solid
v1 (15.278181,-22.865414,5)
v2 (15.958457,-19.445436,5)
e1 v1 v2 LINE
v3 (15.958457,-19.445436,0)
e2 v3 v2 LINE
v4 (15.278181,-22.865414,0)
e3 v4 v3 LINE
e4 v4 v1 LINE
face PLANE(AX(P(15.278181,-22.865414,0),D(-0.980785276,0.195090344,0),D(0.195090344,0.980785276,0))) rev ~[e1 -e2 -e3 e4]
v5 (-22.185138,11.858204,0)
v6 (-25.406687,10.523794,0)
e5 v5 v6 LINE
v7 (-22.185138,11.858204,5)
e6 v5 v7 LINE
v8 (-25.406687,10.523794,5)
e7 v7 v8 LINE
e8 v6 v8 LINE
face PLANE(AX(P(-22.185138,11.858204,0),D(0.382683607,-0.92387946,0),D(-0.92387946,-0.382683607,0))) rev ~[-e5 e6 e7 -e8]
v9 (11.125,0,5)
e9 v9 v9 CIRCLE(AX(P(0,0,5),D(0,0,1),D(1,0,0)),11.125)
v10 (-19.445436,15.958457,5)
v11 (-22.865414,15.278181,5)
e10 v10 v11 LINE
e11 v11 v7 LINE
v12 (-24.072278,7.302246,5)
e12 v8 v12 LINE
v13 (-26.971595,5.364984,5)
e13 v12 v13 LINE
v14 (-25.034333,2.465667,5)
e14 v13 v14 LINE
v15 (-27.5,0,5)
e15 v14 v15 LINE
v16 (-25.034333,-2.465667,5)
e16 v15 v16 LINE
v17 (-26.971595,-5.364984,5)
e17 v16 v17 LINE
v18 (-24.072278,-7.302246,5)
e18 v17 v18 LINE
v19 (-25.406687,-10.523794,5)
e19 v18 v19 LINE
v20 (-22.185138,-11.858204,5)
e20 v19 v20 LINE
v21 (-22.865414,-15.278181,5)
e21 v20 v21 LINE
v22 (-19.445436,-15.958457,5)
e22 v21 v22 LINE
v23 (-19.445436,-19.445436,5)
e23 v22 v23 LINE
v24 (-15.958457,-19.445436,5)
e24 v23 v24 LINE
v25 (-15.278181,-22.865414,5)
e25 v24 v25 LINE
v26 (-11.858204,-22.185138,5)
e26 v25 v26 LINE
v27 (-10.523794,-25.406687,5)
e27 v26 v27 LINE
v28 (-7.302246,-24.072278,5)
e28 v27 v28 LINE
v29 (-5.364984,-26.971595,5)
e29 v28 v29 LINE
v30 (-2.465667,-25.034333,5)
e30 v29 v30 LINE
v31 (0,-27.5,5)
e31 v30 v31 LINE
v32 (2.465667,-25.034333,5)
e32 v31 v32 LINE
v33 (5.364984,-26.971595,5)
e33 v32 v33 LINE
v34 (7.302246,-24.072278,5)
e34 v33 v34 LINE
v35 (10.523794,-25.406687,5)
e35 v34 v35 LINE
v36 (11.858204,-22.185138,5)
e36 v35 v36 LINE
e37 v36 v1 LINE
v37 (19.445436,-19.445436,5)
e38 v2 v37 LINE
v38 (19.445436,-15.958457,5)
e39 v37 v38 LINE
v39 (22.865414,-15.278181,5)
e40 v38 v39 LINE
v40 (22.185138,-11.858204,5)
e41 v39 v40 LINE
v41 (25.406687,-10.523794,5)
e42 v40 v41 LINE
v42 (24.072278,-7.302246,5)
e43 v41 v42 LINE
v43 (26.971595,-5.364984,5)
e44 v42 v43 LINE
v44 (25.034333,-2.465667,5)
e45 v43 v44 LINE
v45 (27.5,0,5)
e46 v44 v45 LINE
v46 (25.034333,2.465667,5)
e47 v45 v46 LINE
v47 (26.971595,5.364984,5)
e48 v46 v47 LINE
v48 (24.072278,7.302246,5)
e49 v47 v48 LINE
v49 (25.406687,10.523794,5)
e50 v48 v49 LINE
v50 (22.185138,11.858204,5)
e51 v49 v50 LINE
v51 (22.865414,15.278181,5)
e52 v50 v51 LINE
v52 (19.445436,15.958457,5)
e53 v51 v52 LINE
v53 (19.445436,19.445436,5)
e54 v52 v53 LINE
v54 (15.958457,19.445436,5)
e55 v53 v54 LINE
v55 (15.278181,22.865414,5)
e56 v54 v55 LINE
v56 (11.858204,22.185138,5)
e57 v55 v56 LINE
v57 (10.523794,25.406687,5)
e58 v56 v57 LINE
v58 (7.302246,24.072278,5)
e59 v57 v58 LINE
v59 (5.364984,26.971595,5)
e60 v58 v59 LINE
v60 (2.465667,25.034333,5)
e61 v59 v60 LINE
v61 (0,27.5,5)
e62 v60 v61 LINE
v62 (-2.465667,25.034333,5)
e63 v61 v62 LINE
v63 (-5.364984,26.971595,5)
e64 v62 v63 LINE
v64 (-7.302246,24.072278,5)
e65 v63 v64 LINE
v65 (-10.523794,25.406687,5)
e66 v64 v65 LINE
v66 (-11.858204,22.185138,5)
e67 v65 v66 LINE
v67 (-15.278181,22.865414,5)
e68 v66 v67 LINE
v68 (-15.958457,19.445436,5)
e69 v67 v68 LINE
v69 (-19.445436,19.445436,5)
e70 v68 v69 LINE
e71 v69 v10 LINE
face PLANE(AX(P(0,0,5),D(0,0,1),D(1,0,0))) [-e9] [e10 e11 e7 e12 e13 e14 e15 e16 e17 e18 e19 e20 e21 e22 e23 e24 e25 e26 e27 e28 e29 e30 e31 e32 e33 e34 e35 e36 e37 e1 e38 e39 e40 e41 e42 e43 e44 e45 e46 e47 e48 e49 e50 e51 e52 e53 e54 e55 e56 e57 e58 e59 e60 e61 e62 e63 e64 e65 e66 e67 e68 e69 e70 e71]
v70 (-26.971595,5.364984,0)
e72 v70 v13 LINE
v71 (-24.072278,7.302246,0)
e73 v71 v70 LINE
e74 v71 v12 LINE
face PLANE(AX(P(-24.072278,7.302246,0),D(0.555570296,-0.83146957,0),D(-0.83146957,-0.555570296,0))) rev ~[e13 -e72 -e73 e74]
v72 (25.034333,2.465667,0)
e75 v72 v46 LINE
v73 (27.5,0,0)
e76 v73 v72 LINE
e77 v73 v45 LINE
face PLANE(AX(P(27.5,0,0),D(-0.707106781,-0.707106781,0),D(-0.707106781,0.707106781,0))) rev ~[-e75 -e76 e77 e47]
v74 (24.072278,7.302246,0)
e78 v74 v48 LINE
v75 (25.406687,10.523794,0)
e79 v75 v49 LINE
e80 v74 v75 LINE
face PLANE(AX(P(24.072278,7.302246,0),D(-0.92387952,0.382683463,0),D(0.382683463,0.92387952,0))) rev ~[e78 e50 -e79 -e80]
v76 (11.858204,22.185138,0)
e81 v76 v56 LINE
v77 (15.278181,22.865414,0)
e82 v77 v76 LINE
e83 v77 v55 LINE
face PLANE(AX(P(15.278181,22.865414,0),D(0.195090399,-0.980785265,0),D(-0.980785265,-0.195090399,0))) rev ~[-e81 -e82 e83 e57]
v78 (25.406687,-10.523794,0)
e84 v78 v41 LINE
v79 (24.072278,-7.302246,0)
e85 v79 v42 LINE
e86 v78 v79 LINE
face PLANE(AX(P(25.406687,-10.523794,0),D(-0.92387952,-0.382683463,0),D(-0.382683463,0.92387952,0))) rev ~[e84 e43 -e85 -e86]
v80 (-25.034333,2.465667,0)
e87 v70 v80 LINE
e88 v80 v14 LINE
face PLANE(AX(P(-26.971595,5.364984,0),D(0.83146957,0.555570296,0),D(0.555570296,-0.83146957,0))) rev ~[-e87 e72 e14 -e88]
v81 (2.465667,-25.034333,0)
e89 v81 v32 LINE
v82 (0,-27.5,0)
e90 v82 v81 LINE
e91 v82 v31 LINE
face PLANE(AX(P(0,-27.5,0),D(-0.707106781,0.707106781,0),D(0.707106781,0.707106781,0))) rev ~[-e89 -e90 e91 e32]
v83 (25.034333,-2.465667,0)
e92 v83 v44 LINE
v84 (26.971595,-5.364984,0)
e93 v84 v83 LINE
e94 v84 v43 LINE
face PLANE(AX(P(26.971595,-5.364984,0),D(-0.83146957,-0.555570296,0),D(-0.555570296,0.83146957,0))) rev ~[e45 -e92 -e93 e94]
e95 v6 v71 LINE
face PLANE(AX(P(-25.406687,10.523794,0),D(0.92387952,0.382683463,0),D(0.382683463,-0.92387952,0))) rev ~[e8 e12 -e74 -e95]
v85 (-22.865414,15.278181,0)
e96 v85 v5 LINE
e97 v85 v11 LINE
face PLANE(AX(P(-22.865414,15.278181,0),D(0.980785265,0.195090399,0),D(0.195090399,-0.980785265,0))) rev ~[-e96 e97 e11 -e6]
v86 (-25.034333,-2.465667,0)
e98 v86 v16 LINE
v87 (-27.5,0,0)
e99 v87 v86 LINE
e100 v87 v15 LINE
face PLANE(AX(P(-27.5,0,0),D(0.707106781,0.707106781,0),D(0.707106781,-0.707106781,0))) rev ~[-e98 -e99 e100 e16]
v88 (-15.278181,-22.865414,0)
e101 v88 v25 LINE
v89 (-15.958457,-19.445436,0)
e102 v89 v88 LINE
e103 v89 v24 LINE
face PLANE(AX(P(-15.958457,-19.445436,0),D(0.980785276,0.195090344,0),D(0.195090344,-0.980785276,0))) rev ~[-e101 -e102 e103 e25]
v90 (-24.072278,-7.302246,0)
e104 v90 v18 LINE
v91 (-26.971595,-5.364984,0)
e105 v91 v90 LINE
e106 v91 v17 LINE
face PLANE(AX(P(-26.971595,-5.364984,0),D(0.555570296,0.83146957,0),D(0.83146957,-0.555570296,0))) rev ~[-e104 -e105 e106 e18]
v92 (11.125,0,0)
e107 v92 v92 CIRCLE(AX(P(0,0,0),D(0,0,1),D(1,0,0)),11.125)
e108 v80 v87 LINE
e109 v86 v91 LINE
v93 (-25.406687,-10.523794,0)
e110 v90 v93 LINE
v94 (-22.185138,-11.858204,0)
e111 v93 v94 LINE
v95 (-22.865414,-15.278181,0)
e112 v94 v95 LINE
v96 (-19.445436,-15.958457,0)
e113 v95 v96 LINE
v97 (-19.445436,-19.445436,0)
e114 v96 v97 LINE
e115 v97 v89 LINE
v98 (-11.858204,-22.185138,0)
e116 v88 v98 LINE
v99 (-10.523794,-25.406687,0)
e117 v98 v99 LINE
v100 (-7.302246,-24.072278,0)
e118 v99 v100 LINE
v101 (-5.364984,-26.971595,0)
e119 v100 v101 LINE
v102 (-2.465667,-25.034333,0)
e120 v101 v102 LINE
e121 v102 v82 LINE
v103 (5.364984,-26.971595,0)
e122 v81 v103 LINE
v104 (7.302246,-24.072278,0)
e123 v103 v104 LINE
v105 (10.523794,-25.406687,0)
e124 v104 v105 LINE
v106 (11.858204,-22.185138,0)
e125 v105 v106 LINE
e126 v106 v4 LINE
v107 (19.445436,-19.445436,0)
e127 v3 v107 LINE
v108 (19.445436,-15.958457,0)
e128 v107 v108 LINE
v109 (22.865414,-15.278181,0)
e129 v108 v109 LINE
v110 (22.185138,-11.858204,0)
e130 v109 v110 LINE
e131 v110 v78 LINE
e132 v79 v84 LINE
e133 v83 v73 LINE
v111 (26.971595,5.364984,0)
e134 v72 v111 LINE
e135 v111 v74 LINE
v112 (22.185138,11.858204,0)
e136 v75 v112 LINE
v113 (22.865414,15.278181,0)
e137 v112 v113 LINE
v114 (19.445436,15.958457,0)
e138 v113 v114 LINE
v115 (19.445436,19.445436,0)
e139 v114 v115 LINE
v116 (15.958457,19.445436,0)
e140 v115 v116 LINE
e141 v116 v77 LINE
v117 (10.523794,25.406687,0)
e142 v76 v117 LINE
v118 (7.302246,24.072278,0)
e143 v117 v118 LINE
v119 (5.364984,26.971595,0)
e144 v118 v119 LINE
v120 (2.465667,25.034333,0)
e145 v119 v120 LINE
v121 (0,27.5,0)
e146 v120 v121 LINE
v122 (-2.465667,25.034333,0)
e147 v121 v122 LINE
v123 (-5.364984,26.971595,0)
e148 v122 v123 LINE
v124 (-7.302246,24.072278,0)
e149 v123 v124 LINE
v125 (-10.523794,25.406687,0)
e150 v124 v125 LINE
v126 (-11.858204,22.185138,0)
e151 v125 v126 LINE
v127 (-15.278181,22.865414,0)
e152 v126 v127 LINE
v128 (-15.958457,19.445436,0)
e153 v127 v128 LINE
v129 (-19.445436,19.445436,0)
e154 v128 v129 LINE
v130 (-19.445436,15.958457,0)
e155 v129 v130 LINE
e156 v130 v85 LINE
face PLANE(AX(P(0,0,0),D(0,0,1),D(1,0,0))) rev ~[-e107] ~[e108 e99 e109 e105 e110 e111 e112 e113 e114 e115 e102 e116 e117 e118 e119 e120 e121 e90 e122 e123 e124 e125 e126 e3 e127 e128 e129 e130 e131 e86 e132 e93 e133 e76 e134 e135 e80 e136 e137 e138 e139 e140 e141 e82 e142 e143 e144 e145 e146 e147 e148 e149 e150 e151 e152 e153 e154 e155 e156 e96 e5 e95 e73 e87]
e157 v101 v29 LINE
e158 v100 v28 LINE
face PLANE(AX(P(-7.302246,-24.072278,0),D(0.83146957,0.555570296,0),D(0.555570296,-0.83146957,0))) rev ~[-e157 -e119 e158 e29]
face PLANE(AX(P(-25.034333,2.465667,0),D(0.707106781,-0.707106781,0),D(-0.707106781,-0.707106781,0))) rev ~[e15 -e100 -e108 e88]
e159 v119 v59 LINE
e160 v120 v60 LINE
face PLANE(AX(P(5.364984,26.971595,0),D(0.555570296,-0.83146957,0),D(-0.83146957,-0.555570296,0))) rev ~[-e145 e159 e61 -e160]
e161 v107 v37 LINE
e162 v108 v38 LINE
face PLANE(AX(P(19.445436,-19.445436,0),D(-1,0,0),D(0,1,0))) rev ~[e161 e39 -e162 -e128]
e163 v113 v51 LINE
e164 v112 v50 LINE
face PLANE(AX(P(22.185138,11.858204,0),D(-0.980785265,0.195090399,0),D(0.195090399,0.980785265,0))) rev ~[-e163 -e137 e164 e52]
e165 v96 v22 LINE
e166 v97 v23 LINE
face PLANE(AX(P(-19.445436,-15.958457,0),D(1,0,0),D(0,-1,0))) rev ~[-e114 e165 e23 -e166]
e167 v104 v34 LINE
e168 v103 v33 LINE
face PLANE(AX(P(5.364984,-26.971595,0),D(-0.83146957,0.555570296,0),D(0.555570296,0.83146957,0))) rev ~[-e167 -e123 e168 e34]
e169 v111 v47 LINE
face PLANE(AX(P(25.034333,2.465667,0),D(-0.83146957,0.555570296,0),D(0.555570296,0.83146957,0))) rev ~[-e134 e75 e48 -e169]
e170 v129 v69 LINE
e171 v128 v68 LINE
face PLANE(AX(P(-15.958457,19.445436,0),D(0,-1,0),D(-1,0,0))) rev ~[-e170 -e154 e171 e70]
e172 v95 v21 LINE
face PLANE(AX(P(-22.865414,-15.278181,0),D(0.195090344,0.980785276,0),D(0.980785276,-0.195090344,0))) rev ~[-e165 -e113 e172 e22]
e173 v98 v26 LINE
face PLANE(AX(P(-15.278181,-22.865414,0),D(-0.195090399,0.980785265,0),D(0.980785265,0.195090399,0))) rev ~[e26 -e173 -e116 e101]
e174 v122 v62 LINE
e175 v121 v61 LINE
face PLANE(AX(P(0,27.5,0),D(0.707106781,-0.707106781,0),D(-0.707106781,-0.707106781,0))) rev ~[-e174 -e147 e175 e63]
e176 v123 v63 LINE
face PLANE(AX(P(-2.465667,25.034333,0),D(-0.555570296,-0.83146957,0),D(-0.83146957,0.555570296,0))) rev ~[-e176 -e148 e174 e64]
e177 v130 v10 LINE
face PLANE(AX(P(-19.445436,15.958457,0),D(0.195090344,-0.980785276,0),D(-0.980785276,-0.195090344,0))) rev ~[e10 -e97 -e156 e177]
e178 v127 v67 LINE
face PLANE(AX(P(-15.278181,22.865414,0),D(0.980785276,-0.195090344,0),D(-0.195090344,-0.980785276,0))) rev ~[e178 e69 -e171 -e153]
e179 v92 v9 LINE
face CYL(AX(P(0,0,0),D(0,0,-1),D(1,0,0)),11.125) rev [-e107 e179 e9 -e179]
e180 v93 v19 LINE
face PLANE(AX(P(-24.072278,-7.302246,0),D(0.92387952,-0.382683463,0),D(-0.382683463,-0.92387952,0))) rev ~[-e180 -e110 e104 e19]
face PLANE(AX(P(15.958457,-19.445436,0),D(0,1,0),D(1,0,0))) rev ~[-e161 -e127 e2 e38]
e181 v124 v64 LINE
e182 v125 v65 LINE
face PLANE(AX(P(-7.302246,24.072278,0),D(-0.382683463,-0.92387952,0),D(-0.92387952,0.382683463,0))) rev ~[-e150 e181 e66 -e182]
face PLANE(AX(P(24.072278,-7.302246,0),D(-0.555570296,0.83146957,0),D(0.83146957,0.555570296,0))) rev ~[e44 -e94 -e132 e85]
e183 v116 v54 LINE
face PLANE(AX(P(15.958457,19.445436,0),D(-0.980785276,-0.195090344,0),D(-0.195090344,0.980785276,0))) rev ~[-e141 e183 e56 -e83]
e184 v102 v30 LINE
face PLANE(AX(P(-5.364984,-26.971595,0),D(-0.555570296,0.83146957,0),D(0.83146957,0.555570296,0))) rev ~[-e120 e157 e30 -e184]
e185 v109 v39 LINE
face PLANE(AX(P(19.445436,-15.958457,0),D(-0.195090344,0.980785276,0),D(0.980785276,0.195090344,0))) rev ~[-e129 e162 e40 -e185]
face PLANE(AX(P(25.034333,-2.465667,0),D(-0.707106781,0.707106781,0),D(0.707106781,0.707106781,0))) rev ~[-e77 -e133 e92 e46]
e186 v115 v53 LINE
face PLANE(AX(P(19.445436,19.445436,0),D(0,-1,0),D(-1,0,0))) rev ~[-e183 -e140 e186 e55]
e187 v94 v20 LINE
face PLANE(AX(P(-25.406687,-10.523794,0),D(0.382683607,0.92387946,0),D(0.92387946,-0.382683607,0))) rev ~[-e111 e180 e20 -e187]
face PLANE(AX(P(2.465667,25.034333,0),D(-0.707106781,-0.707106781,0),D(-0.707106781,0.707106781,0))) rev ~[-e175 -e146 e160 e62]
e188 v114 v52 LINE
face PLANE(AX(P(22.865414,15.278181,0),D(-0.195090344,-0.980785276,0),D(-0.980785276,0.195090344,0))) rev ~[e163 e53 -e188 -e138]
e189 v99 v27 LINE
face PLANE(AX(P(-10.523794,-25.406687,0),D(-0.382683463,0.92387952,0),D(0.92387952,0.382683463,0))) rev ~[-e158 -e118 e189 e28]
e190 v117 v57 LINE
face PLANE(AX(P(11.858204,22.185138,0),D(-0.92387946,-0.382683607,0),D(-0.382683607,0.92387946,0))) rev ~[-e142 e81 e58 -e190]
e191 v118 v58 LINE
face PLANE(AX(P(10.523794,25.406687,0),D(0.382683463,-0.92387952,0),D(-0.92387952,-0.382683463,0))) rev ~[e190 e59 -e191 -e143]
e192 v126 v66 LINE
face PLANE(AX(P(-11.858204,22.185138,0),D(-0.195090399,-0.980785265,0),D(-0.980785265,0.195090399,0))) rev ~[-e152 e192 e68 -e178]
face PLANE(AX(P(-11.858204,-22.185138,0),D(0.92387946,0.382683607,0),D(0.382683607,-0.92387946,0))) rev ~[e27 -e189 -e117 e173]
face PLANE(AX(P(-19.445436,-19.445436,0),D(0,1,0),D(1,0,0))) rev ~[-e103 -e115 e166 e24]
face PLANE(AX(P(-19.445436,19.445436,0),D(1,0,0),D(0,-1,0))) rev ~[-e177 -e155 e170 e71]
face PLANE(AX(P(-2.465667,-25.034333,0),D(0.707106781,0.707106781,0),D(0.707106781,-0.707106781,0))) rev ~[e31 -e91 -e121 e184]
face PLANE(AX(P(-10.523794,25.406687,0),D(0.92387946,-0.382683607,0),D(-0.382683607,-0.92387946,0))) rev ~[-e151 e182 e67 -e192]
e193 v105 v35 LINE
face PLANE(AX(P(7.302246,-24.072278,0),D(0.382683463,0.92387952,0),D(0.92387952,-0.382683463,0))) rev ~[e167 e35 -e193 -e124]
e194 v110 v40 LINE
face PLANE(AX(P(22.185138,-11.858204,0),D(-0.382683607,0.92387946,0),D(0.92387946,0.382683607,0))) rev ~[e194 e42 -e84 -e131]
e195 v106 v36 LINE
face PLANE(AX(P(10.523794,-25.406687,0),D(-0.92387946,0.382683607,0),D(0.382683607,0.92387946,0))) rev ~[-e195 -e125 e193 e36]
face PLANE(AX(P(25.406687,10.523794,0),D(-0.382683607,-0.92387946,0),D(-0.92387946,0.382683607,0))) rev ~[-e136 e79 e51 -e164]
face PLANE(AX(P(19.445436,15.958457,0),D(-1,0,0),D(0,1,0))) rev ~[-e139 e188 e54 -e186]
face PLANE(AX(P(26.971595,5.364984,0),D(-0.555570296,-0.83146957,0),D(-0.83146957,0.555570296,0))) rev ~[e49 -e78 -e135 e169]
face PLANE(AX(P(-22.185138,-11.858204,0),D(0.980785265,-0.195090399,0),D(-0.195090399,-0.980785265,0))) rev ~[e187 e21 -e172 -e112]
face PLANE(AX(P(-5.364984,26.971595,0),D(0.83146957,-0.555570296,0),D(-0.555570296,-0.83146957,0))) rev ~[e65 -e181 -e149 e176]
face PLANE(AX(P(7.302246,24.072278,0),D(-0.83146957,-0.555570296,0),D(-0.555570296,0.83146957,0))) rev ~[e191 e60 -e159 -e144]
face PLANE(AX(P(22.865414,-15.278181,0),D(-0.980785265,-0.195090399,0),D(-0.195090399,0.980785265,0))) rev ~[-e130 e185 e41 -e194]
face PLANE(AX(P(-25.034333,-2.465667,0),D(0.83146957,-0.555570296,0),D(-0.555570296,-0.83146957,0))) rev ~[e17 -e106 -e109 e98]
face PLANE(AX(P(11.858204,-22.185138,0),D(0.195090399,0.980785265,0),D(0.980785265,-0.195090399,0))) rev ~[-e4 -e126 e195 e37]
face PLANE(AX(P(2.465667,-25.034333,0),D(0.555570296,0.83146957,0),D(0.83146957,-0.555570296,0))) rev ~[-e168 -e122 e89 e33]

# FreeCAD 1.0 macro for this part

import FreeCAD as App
import Part
import Sketcher
Q = App.Units.Quantity


def add_polygon(sketch, points):
    """Adds a closed chain of lines whose ends are joined by coincident constraints."""
    first, n = sketch.GeometryCount, len(points)
    for a, b in zip(points, points[1:] + points[:1]):
        sketch.addGeometry(Part.LineSegment(App.Vector(*a, 0), App.Vector(*b, 0)), False)
    for i in range(n):
        sketch.addConstraint(Sketcher.Constraint("Coincident", first + i, 2, first + (i + 1) % n, 1))

doc = App.newDocument("Part")
params = doc.addObject("Spreadsheet::Sheet", "Params")
for row, (alias, value) in enumerate([
    ("sketch1_diameter", "22.25 mm"),
    ("pad1_length", "5 mm"),
], start=1):
    params.set(f"A{row}", alias)
    params.set(f"B{row}", "=" + value)
    params.setAlias(f"B{row}", alias)

body = doc.addObject("PartDesign::Body", "Body")

# Sketch on XY plane
sketch1 = body.newObject("Sketcher::SketchObject", "Sketch")
sketch1.AttachmentSupport = (doc.getObject("XY_Plane"), [""])
sketch1.MapMode = "FlatFace"
add_polygon(sketch1, [(25.034333, -2.465667), (27.5, 0), (25.034333, 2.465667), (26.971595, 5.364984), (24.072278, 7.302246), (25.406687, 10.523794), (22.185138, 11.858204), (22.865414, 15.278181), (19.445436, 15.958457), (19.445436, 19.445436), (15.958457, 19.445436), (15.278181, 22.865414), (11.858204, 22.185138), (10.523794, 25.406687), (7.302246, 24.072278), (5.364984, 26.971595), (2.465667, 25.034333), (0, 27.5), (-2.465667, 25.034333), (-5.364984, 26.971595), (-7.302246, 24.072278), (-10.523794, 25.406687), (-11.858204, 22.185138), (-15.278181, 22.865414), (-15.958457, 19.445436), (-19.445436, 19.445436), (-19.445436, 15.958457), (-22.865414, 15.278181), (-22.185138, 11.858204), (-25.406687, 10.523794), (-24.072278, 7.302246), (-26.971595, 5.364984), (-25.034333, 2.465667), (-27.5, 0), (-25.034333, -2.465667), (-26.971595, -5.364984), (-24.072278, -7.302246), (-25.406687, -10.523794), (-22.185138, -11.858204), (-22.865414, -15.278181), (-19.445436, -15.958457), (-19.445436, -19.445436), (-15.958457, -19.445436), (-15.278181, -22.865414), (-11.858204, -22.185138), (-10.523794, -25.406687), (-7.302246, -24.072278), (-5.364984, -26.971595), (-2.465667, -25.034333), (0, -27.5), (2.465667, -25.034333), (5.364984, -26.971595), (7.302246, -24.072278), (10.523794, -25.406687), (11.858204, -22.185138), (15.278181, -22.865414), (15.958457, -19.445436), (19.445436, -19.445436), (19.445436, -15.958457), (22.865414, -15.278181), (22.185138, -11.858204), (25.406687, -10.523794), (24.072278, -7.302246), (26.971595, -5.364984)])  # lines 0-63
sketch1.addGeometry(Part.Circle(App.Vector(0, 0, 0), App.Vector(0, 0, 1), 11.125), False)  # 64
sketch1.addConstraint([
    Sketcher.Constraint("Vertical", 8),
    Sketcher.Constraint("Horizontal", 9),
    Sketcher.Constraint("Horizontal", 24),
    Sketcher.Constraint("Vertical", 25),
    Sketcher.Constraint("Vertical", 40),
    Sketcher.Constraint("Horizontal", 41),
    Sketcher.Constraint("Horizontal", 56),
    Sketcher.Constraint("Vertical", 57),
    Sketcher.Constraint("Coincident", 64, 3, -1, 1),
    Sketcher.Constraint("Symmetric", 0, 2, 32, 2, -1, 1),
    Sketcher.Constraint("Symmetric", 1, 2, 33, 2, -1, 1),
    Sketcher.Constraint("Symmetric", 2, 2, 34, 2, -1, 1),
    Sketcher.Constraint("Symmetric", 3, 2, 35, 2, -1, 1),
    Sketcher.Constraint("Symmetric", 4, 2, 36, 2, -1, 1),
    Sketcher.Constraint("Symmetric", 5, 2, 37, 2, -1, 1),
    Sketcher.Constraint("Symmetric", 6, 2, 38, 2, -1, 1),
    Sketcher.Constraint("Symmetric", 7, 2, 39, 2, -1, 1),
    Sketcher.Constraint("Symmetric", 9, 2, 41, 2, -1, 1),
    Sketcher.Constraint("Symmetric", 10, 2, 42, 2, -1, 1),
    Sketcher.Constraint("Symmetric", 11, 2, 43, 2, -1, 1),
    Sketcher.Constraint("Symmetric", 12, 2, 44, 2, -1, 1),
    Sketcher.Constraint("Symmetric", 13, 2, 45, 2, -1, 1),
    Sketcher.Constraint("Symmetric", 14, 2, 46, 2, -1, 1),
    Sketcher.Constraint("Symmetric", 15, 2, 47, 2, -1, 1),
    Sketcher.Constraint("Symmetric", 16, 2, 48, 2, -1, 1),
    Sketcher.Constraint("Symmetric", 17, 2, 49, 2, -1, 1),
    Sketcher.Constraint("Symmetric", 18, 2, 50, 2, -1, 1),
    Sketcher.Constraint("Symmetric", 19, 2, 51, 2, -1, 1),
    Sketcher.Constraint("Symmetric", 20, 2, 52, 2, -1, 1),
    Sketcher.Constraint("Symmetric", 21, 2, 53, 2, -1, 1),
    Sketcher.Constraint("Symmetric", 22, 2, 54, 2, -1, 1),
    Sketcher.Constraint("Symmetric", 23, 2, 55, 2, -1, 1),
    Sketcher.Constraint("Symmetric", 25, 2, 57, 2, -1, 1),
    Sketcher.Constraint("Symmetric", 26, 2, 58, 2, -1, 1),
    Sketcher.Constraint("Symmetric", 27, 2, 59, 2, -1, 1),
    Sketcher.Constraint("Symmetric", 28, 2, 60, 2, -1, 1),
    Sketcher.Constraint("Symmetric", 29, 2, 61, 2, -1, 1),
    Sketcher.Constraint("Symmetric", 30, 2, 62, 2, -1, 1),
    Sketcher.Constraint("Symmetric", 31, 2, 63, 2, -1, 1),
    Sketcher.Constraint("Symmetric", 15, 2, 17, 2, -2),
    Sketcher.Constraint("Symmetric", 14, 2, 18, 2, -2),
    Sketcher.Constraint("Symmetric", 13, 2, 19, 2, -2),
    Sketcher.Constraint("Symmetric", 12, 2, 20, 2, -2),
    Sketcher.Constraint("Symmetric", 11, 2, 21, 2, -2),
    Sketcher.Constraint("Symmetric", 10, 2, 22, 2, -2),
    Sketcher.Constraint("Symmetric", 9, 2, 23, 2, -2),
    Sketcher.Constraint("Symmetric", 7, 2, 25, 2, -2),
    Sketcher.Constraint("Symmetric", 6, 2, 26, 2, -2),
    Sketcher.Constraint("Symmetric", 5, 2, 27, 2, -2),
    Sketcher.Constraint("Symmetric", 4, 2, 28, 2, -2),
    Sketcher.Constraint("Symmetric", 3, 2, 29, 2, -2),
    Sketcher.Constraint("Symmetric", 2, 2, 30, 2, -2),
    Sketcher.Constraint("Symmetric", 1, 2, 31, 2, -2),
    Sketcher.Constraint("PointOnObject", 0, 2, -1),
    Sketcher.Constraint("PointOnObject", 16, 2, -2),
    Sketcher.Constraint("Perpendicular", 0, 1),
    Sketcher.Constraint("Perpendicular", 2, 3),
    Sketcher.Constraint("Perpendicular", 4, 5),
    Sketcher.Constraint("Perpendicular", 6, 7),
    Sketcher.Constraint("Perpendicular", 10, 11),
    Sketcher.Constraint("Perpendicular", 12, 13),
    Sketcher.Constraint("Perpendicular", 14, 15),
    Sketcher.Constraint("Parallel", 1, 16),
    Sketcher.Constraint("Parallel", 3, 18),
    Sketcher.Constraint("Parallel", 5, 20),
    Sketcher.Constraint("Parallel", 7, 22),
    Sketcher.Constraint("Equal", 56, 8),
    Sketcher.Constraint("Equal", 1, 2),
    Sketcher.Constraint("Equal", 2, 3),
    Sketcher.Constraint("Equal", 3, 4),
    Sketcher.Constraint("Equal", 4, 5),
    Sketcher.Constraint("Equal", 5, 6),
    Sketcher.Constraint("Equal", 6, 7),
    Sketcher.Constraint("Equal", 7, 10),
    Sketcher.Constraint("Equal", 10, 11),
    Sketcher.Constraint("Equal", 11, 12),
    Sketcher.Constraint("Equal", 12, 13),
    Sketcher.Constraint("Equal", 13, 14),
    Sketcher.Constraint("Equal", 14, 15),
    Sketcher.Constraint("Equal", 15, 16),
    Sketcher.Constraint("Diameter", 64, Q("22.25 mm")),
    Sketcher.Constraint("Angle", 4, Q("67.499998 deg")),
    Sketcher.Constraint("DistanceX", -1, 1, 0, 2, Q("27.5 mm")),
    Sketcher.Constraint("Angle", 2, Q("56.249996 deg")),
    Sketcher.Constraint("Angle", 6, Q("78.749996 deg")),
    Sketcher.Constraint("DistanceX", 9, 2, 9, 1, Q("3.486979 mm")),
])
sketch1.setExpression("Constraints[144]", "Params.sketch1_diameter")
pad1 = body.newObject("PartDesign::Pad", "Pad")
pad1.Profile = sketch1
pad1.setExpression("Length", "Params.pad1_length")

doc.recompute()
